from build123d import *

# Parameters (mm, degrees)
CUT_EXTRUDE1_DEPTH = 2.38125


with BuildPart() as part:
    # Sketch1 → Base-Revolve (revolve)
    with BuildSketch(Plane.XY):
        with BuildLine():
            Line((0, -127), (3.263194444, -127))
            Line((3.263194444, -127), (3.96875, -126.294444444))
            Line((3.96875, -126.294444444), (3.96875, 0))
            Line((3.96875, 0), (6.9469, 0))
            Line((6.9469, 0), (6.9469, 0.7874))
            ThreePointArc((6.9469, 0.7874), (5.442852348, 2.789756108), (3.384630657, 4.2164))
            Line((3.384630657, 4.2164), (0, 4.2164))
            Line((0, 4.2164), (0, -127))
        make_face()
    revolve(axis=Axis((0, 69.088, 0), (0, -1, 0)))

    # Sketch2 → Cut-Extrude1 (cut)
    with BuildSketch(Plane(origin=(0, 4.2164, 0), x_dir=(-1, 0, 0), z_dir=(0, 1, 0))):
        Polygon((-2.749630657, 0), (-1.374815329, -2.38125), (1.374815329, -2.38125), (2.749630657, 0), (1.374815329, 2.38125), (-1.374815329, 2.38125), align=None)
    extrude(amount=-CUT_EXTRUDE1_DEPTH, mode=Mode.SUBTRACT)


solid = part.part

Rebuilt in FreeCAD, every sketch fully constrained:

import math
import FreeCAD as App
import Part
import Sketcher
from FreeCAD import Vector
Q = App.Units.Quantity

doc = App.newDocument("Part")
params = doc.addObject("Spreadsheet::Sheet", "Params")
for row, (alias, value) in enumerate([
    ("sketch1_height", "0.031 in"),
    ("sketch1_height2", "5.166 in"),
    ("revolution_angle", "360 deg"),
    ("pocket1_length", "0.09375 in"),
], start=1):
    params.set(f"A{row}", alias)
    params.set(f"B{row}", "=" + value)
    params.setAlias(f"B{row}", alias)

body = doc.addObject("PartDesign::Body", "Body")

# Sketch on XY plane
sketch1 = doc.addObject("Sketcher::SketchObject", "Sketch")
body.addObject(sketch1)
sketch1.AttachmentSupport = (doc.XY_Plane, [""])
sketch1.MapMode = "FlatFace"
sketch1.addGeometry([
    Part.LineSegment(Vector(0, -127, 0), Vector(3.3, -127, 0)),  # 0
    Part.LineSegment(Vector(3.3, -127, 0), Vector(4, -126.3, 0)),  # 1
    Part.LineSegment(Vector(4, -126.3, 0), Vector(4, 0, 0)),  # 2
    Part.LineSegment(Vector(4, 0, 0), Vector(6.9, 0, 0)),  # 3
    Part.LineSegment(Vector(6.9, 0, 0), Vector(6.9, 0.8, 0)),  # 4
    Part.ArcOfCircle(Part.Circle(Vector(0, -2.9, 0), Vector(0, 0, 1), 7.8), math.radians(28), math.radians(64)),  # 5
    Part.LineSegment(Vector(3.4, 4.2, 0), Vector(0, 4.2, 0)),  # 6
    Part.LineSegment(Vector(0, 4.2, 0), Vector(0, -127, 0)),  # 7
], False)
sketch1.addConstraint([
    Sketcher.Constraint("Coincident", 0, 2, 1, 1),
    Sketcher.Constraint("Coincident", 1, 2, 2, 1),
    Sketcher.Constraint("Coincident", 2, 2, 3, 1),
    Sketcher.Constraint("Coincident", 3, 2, 4, 1),
    Sketcher.Constraint("Coincident", 4, 2, 5, 1),
    Sketcher.Constraint("Coincident", 5, 2, 6, 1),
    Sketcher.Constraint("Coincident", 6, 2, 7, 1),
    Sketcher.Constraint("Coincident", 7, 2, 0, 1),
    Sketcher.Constraint("Horizontal", 0),
    Sketcher.Constraint("Vertical", 2),
    Sketcher.Constraint("Horizontal", 3),
    Sketcher.Constraint("Vertical", 4),
    Sketcher.Constraint("Horizontal", 6),
    Sketcher.Constraint("Vertical", 7),
    Sketcher.Constraint("PointOnObject", 5, 3, -2),
    Sketcher.Constraint("PointOnObject", 2, 2, -1),
    Sketcher.Constraint("PointOnObject", 6, 2, -2),
    Sketcher.Constraint("DistanceY", 0, 2, -1, 1, Q("5 in")),
    Sketcher.Constraint("Angle", 1, Q("45 deg")),
    Sketcher.Constraint("DistanceY", 4, 1, 4, 2, Q("0.031 in")),
    Sketcher.Constraint("DistanceY", 7, 2, 7, 1, Q("5.166 in")),
    Sketcher.Constraint("DistanceX", -1, 1, 1, 2, Q("0.15625 in")),
    Sketcher.Constraint("Radius", 5, 7.848361),
    Sketcher.Constraint("DistanceX", -1, 1, 3, 2, Q("0.2735 in")),
    Sketcher.Constraint("DistanceX", 0, 1, 0, 2, 3.263194),
])
sketch1.setExpression("Constraints[19]", "Params.sketch1_height")
sketch1.setExpression("Constraints[20]", "Params.sketch1_height2")
revolution = doc.addObject("PartDesign::Revolution", "Revolution")
body.addObject(revolution)
revolution.Profile = sketch1
revolution.ReferenceAxis = (sketch1, ["V_Axis"])
revolution.setExpression("Angle", "Params.revolution_angle")

# Sketch on XZ plane
sketch2 = doc.addObject("Sketcher::SketchObject", "Sketch001")
body.addObject(sketch2)
sketch2.AttachmentSupport = (doc.XZ_Plane, [""])
sketch2.MapMode = "FlatFace"
sketch2.AttachmentOffset = App.Placement(Vector(0, 0, -0.166 * 25.4), App.Rotation())
sketch2.addGeometry([
    Part.LineSegment(Vector(2.7, 0, 0), Vector(1.4, -2.4, 0)),  # 0
    Part.LineSegment(Vector(1.4, -2.4, 0), Vector(-1.4, -2.4, 0)),  # 1
    Part.LineSegment(Vector(-1.4, -2.4, 0), Vector(-2.7, 0, 0)),  # 2
    Part.LineSegment(Vector(-2.7, 0, 0), Vector(-1.4, 2.4, 0)),  # 3
    Part.LineSegment(Vector(-1.4, 2.4, 0), Vector(1.4, 2.4, 0)),  # 4
    Part.LineSegment(Vector(1.4, 2.4, 0), Vector(2.7, 0, 0)),  # 5
], False)
sketch2.addConstraint([
    Sketcher.Constraint("Coincident", 0, 2, 1, 1),
    Sketcher.Constraint("Coincident", 1, 2, 2, 1),
    Sketcher.Constraint("Coincident", 2, 2, 3, 1),
    Sketcher.Constraint("Coincident", 3, 2, 4, 1),
    Sketcher.Constraint("Coincident", 4, 2, 5, 1),
    Sketcher.Constraint("Coincident", 5, 2, 0, 1),
    Sketcher.Constraint("Horizontal", 1),
    Sketcher.Constraint("Horizontal", 4),
    Sketcher.Constraint("Symmetric", 0, 2, 3, 2, -1, 1),
    Sketcher.Constraint("Symmetric", 2, 2, 5, 2, -1, 1),
    Sketcher.Constraint("PointOnObject", 2, 2, -1),
    Sketcher.Constraint("Parallel", 2, 5),
    Sketcher.Constraint("Vertical", 1, 2, 3, 2),
    Sketcher.Constraint("Angle", 0, Q("-120 deg")),
    Sketcher.Constraint("DistanceY", 0, 2, -1, 1, Q("0.09375 in")),
    Sketcher.Constraint("DistanceX", 1, 2, 1, 1, 2.749631),
])
pocket1 = doc.addObject("PartDesign::Pocket", "Pocket")
body.addObject(pocket1)
pocket1.Profile = sketch2
pocket1.setExpression("Length", "Params.pocket1_length")
pocket1.Reversed = True

doc.recompute()
